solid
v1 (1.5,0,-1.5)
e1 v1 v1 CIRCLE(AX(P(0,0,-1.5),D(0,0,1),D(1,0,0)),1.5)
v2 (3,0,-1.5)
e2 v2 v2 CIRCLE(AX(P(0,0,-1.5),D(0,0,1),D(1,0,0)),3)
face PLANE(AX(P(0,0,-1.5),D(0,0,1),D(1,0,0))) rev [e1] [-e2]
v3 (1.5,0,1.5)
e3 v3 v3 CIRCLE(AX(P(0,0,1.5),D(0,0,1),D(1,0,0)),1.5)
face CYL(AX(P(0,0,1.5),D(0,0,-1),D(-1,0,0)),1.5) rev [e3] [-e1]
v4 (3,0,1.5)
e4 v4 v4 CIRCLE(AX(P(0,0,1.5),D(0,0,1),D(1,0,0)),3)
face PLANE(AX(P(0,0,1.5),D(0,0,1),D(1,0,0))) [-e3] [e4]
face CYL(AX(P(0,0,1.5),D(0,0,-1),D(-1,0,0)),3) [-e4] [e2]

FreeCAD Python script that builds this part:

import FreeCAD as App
import Part
import Sketcher

doc = App.newDocument("Part")
body = doc.addObject("PartDesign::Body", "Body")

# Sketch on XY plane
sketch1 = body.newObject("Sketcher::SketchObject", "Sketch")
sketch1.AttachmentSupport = (doc.getObject("XY_Plane"), [""])
sketch1.MapMode = "FlatFace"
sketch1.addGeometry([
    Part.Circle(App.Vector(0, 0, 0), App.Vector(0, 0, 1), 3),
    Part.Circle(App.Vector(0, 0, 0), App.Vector(0, 0, 1), 1.5),
], False)
sketch1.addConstraint([
    Sketcher.Constraint("Coincident", 0, 3, -1, 1),
    Sketcher.Constraint("Coincident", 1, 3, -1, 1),
    Sketcher.Constraint("Diameter", 0, 6.0),
    Sketcher.Constraint("Diameter", 1, 3.0),
])
pad1 = body.newObject("PartDesign::Pad", "Pad")
pad1.Profile = sketch1
pad1.Length = 3
pad1.Midplane = True

doc.recompute()
